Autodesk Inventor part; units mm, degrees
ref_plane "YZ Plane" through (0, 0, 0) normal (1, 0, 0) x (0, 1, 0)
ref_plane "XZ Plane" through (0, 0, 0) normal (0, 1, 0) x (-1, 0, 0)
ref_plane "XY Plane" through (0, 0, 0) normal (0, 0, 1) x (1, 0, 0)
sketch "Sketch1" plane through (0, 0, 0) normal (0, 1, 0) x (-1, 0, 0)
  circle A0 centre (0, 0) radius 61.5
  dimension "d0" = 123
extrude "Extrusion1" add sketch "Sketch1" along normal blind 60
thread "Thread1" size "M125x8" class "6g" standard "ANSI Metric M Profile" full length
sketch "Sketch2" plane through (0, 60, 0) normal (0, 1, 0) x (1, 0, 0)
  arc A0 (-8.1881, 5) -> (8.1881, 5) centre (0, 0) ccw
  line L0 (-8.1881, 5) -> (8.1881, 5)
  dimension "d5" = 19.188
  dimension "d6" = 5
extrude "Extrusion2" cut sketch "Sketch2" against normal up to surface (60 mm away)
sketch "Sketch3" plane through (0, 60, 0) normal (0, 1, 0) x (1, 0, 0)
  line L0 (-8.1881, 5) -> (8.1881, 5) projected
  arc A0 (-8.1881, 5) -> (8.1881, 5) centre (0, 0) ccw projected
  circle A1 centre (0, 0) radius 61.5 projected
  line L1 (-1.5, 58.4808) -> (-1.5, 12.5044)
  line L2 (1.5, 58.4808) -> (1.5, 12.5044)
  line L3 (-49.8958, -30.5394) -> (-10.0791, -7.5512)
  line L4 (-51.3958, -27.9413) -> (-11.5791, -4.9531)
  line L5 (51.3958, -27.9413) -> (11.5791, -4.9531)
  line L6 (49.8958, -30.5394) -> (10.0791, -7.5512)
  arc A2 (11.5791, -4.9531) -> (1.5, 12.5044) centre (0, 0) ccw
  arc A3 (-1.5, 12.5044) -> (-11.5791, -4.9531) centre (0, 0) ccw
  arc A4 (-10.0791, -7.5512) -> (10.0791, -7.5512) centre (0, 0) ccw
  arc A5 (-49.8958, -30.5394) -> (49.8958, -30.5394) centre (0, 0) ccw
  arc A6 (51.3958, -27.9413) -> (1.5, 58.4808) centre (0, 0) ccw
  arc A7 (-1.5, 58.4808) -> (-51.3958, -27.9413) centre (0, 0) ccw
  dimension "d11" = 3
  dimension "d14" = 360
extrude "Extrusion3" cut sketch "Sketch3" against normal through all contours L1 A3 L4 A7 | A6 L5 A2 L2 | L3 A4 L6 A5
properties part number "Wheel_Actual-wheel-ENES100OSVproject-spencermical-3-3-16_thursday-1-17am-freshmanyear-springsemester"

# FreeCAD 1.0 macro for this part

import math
import FreeCAD as App
import Part
import Sketcher
Q = App.Units.Quantity

doc = App.newDocument("Part")
params = doc.addObject("Spreadsheet::Sheet", "Params")
for row, (alias, value) in enumerate([
    ("sketch1_diameter", "123 mm"),
    ("pad1_length", "60 mm"),
    ("pocket1_length", "60 mm"),
    ("sketch3_radius", "58.5 mm"),
], start=1):
    params.set(f"A{row}", alias)
    params.set(f"B{row}", "=" + value)
    params.setAlias(f"B{row}", alias)

body = doc.addObject("PartDesign::Body", "Body")

sketch1 = body.newObject("Sketcher::SketchObject", "Sketch")
sketch1.AttachmentSupport = (doc.getObject("XZ_Plane"), [""])
sketch1.MapMode = "FlatFace"
sketch1.addGeometry(Part.Circle(App.Vector(0, 0, 0), App.Vector(0, 0, 1), 61.5), False)
sketch1.addConstraint([
    Sketcher.Constraint("Coincident", 0, 3, -1, 1),
    Sketcher.Constraint("Diameter", 0, Q("123 mm")),
])
sketch1.setExpression("Constraints[1]", "Params.sketch1_diameter")
pad1 = body.newObject("PartDesign::Pad", "Pad")
pad1.Profile = sketch1
pad1.setExpression("Length", "Params.pad1_length")
pad1.Reversed = True

sketch2 = body.newObject("Sketcher::SketchObject", "Sketch001")
sketch2.AttachmentSupport = (doc.getObject("XZ_Plane"), [""])
sketch2.MapMode = "FlatFace"
sketch2.AttachmentOffset = App.Placement(App.Vector(0, 0, -60), App.Rotation())
sketch2.addGeometry([
    Part.LineSegment(App.Vector(8.1881, -5, 0), App.Vector(-8.1881, -5, 0)),
    Part.ArcOfCircle(Part.Circle(App.Vector(0, 0, 0), App.Vector(0, 0, 1), 9.594008), math.radians(-31.410003), math.radians(211.410003)),
], False)
sketch2.addConstraint([
    Sketcher.Constraint("Coincident", 0, 1, 1, 1),
    Sketcher.Constraint("Coincident", 1, 2, 0, 2),
    Sketcher.Constraint("Horizontal", 0),
    Sketcher.Constraint("Coincident", 1, 3, -1, 1),
    Sketcher.Constraint("DistanceY", 0, 1, -1, 1, Q("5 mm")),
    Sketcher.Constraint("Radius", 1, Q("9.594 mm")),
])
pocket1 = body.newObject("PartDesign::Pocket", "Pocket")
pocket1.Profile = sketch2
pocket1.setExpression("Length", "Params.pocket1_length")
pocket1.Reversed = True

sketch3 = body.newObject("Sketcher::SketchObject", "Sketch002")
sketch3.AttachmentSupport = (doc.getObject("XZ_Plane"), [""])
sketch3.MapMode = "FlatFace"
sketch3.AttachmentOffset = App.Placement(App.Vector(0, 0, -60), App.Rotation())
sketch3.addGeometry([
    Part.LineSegment(App.Vector(-1.5, -12.5044, 0), App.Vector(-1.5, -58.4808, 0)),
    Part.ArcOfCircle(Part.Circle(App.Vector(0, 0, 0), App.Vector(0, 0, 1), 58.499953), math.radians(151.469309), math.radians(268.530717)),
    Part.LineSegment(App.Vector(-51.3958, 27.9413, 0), App.Vector(-11.5791, 4.9531, 0)),
    Part.ArcOfCircle(Part.Circle(App.Vector(0, 0, 0), App.Vector(0, 0, 1), 12.593997), math.radians(156.840597), math.radians(263.159612)),
    Part.ArcOfCircle(Part.Circle(App.Vector(0, 0, 0), App.Vector(0, 0, 1), 58.500034), math.radians(-88.530717), math.radians(28.530691)),
    Part.LineSegment(App.Vector(1.5, -58.4808, 0), App.Vector(1.5, -12.5044, 0)),
    Part.ArcOfCircle(Part.Circle(App.Vector(0, 0, 0), App.Vector(0, 0, 1), 12.594047), math.radians(-83.159612), math.radians(23.159403)),
    Part.LineSegment(App.Vector(11.5791, 4.9531, 0), App.Vector(51.3958, 27.9413, 0)),
    Part.LineSegment(App.Vector(-10.0791, 7.5512, 0), App.Vector(-49.8958, 30.5394, 0)),
    Part.ArcOfCircle(Part.Circle(App.Vector(0, 0, 0), App.Vector(0, 0, 1), 58.499964), math.radians(31.469281), math.radians(148.530719)),
    Part.LineSegment(App.Vector(49.8958, 30.5394, 0), App.Vector(10.0791, 7.5512, 0)),
    Part.ArcOfCircle(Part.Circle(App.Vector(0, 0, 0), App.Vector(0, 0, 1), 12.594002), math.radians(36.840326), math.radians(143.159674)),
], False)
sketch3.addConstraint([
    Sketcher.Constraint("Coincident", 0, 2, 1, 2),
    Sketcher.Constraint("Coincident", 1, 1, 2, 1),
    Sketcher.Constraint("Coincident", 2, 2, 3, 1),
    Sketcher.Constraint("Coincident", 3, 2, 0, 1),
    Sketcher.Constraint("Coincident", 4, 1, 5, 1),
    Sketcher.Constraint("Coincident", 5, 2, 6, 1),
    Sketcher.Constraint("Coincident", 6, 2, 7, 1),
    Sketcher.Constraint("Coincident", 7, 2, 4, 2),
    Sketcher.Constraint("Coincident", 8, 2, 9, 2),
    Sketcher.Constraint("Coincident", 9, 1, 10, 1),
    Sketcher.Constraint("Coincident", 10, 2, 11, 1),
    Sketcher.Constraint("Coincident", 11, 2, 8, 1),
    Sketcher.Constraint("Vertical", 0),
    Sketcher.Constraint("Vertical", 5),
    Sketcher.Constraint("Coincident", 1, 3, -1, 1),
    Sketcher.Constraint("Coincident", 3, 3, -1, 1),
    Sketcher.Constraint("Coincident", 4, 3, -1, 1),
    Sketcher.Constraint("Coincident", 6, 3, -1, 1),
    Sketcher.Constraint("Coincident", 9, 3, -1, 1),
    Sketcher.Constraint("Coincident", 11, 3, -1, 1),
    Sketcher.Constraint("Equal", 1, 4),
    Sketcher.Constraint("Equal", 3, 6),
    Sketcher.Constraint("Equal", 4, 9),
    Sketcher.Constraint("Equal", 6, 11),
    Sketcher.Constraint("Parallel", 2, 8),
    Sketcher.Constraint("Parallel", 7, 10),
    Sketcher.Constraint("Horizontal", 0, 2, 4, 1),
    Sketcher.Constraint("Horizontal", 2, 2, 6, 2),
    Sketcher.Constraint("Horizontal", 1, 1, 7, 2),
    Sketcher.Constraint("Horizontal", 8, 2, 9, 1),
    Sketcher.Constraint("Equal", 7, 8),
    Sketcher.Constraint("DistanceX", 0, 2, 4, 1, Q("3 mm")),
    Sketcher.Constraint("Radius", 1, Q("58.5 mm")),
    Sketcher.Constraint("Angle", 2, Q("-30 deg")),
    Sketcher.Constraint("Radius", 3, Q("12.594 mm")),
    Sketcher.Constraint("DistanceX", 1, 1, 8, 2, Q("1.5 mm")),
])
sketch3.setExpression("Constraints[32]", "Params.sketch3_radius")
pocket2 = body.newObject("PartDesign::Pocket", "Pocket001")
pocket2.Profile = sketch3
pocket2.Type = "ThroughAll"
pocket2.Reversed = True

doc.recompute()
